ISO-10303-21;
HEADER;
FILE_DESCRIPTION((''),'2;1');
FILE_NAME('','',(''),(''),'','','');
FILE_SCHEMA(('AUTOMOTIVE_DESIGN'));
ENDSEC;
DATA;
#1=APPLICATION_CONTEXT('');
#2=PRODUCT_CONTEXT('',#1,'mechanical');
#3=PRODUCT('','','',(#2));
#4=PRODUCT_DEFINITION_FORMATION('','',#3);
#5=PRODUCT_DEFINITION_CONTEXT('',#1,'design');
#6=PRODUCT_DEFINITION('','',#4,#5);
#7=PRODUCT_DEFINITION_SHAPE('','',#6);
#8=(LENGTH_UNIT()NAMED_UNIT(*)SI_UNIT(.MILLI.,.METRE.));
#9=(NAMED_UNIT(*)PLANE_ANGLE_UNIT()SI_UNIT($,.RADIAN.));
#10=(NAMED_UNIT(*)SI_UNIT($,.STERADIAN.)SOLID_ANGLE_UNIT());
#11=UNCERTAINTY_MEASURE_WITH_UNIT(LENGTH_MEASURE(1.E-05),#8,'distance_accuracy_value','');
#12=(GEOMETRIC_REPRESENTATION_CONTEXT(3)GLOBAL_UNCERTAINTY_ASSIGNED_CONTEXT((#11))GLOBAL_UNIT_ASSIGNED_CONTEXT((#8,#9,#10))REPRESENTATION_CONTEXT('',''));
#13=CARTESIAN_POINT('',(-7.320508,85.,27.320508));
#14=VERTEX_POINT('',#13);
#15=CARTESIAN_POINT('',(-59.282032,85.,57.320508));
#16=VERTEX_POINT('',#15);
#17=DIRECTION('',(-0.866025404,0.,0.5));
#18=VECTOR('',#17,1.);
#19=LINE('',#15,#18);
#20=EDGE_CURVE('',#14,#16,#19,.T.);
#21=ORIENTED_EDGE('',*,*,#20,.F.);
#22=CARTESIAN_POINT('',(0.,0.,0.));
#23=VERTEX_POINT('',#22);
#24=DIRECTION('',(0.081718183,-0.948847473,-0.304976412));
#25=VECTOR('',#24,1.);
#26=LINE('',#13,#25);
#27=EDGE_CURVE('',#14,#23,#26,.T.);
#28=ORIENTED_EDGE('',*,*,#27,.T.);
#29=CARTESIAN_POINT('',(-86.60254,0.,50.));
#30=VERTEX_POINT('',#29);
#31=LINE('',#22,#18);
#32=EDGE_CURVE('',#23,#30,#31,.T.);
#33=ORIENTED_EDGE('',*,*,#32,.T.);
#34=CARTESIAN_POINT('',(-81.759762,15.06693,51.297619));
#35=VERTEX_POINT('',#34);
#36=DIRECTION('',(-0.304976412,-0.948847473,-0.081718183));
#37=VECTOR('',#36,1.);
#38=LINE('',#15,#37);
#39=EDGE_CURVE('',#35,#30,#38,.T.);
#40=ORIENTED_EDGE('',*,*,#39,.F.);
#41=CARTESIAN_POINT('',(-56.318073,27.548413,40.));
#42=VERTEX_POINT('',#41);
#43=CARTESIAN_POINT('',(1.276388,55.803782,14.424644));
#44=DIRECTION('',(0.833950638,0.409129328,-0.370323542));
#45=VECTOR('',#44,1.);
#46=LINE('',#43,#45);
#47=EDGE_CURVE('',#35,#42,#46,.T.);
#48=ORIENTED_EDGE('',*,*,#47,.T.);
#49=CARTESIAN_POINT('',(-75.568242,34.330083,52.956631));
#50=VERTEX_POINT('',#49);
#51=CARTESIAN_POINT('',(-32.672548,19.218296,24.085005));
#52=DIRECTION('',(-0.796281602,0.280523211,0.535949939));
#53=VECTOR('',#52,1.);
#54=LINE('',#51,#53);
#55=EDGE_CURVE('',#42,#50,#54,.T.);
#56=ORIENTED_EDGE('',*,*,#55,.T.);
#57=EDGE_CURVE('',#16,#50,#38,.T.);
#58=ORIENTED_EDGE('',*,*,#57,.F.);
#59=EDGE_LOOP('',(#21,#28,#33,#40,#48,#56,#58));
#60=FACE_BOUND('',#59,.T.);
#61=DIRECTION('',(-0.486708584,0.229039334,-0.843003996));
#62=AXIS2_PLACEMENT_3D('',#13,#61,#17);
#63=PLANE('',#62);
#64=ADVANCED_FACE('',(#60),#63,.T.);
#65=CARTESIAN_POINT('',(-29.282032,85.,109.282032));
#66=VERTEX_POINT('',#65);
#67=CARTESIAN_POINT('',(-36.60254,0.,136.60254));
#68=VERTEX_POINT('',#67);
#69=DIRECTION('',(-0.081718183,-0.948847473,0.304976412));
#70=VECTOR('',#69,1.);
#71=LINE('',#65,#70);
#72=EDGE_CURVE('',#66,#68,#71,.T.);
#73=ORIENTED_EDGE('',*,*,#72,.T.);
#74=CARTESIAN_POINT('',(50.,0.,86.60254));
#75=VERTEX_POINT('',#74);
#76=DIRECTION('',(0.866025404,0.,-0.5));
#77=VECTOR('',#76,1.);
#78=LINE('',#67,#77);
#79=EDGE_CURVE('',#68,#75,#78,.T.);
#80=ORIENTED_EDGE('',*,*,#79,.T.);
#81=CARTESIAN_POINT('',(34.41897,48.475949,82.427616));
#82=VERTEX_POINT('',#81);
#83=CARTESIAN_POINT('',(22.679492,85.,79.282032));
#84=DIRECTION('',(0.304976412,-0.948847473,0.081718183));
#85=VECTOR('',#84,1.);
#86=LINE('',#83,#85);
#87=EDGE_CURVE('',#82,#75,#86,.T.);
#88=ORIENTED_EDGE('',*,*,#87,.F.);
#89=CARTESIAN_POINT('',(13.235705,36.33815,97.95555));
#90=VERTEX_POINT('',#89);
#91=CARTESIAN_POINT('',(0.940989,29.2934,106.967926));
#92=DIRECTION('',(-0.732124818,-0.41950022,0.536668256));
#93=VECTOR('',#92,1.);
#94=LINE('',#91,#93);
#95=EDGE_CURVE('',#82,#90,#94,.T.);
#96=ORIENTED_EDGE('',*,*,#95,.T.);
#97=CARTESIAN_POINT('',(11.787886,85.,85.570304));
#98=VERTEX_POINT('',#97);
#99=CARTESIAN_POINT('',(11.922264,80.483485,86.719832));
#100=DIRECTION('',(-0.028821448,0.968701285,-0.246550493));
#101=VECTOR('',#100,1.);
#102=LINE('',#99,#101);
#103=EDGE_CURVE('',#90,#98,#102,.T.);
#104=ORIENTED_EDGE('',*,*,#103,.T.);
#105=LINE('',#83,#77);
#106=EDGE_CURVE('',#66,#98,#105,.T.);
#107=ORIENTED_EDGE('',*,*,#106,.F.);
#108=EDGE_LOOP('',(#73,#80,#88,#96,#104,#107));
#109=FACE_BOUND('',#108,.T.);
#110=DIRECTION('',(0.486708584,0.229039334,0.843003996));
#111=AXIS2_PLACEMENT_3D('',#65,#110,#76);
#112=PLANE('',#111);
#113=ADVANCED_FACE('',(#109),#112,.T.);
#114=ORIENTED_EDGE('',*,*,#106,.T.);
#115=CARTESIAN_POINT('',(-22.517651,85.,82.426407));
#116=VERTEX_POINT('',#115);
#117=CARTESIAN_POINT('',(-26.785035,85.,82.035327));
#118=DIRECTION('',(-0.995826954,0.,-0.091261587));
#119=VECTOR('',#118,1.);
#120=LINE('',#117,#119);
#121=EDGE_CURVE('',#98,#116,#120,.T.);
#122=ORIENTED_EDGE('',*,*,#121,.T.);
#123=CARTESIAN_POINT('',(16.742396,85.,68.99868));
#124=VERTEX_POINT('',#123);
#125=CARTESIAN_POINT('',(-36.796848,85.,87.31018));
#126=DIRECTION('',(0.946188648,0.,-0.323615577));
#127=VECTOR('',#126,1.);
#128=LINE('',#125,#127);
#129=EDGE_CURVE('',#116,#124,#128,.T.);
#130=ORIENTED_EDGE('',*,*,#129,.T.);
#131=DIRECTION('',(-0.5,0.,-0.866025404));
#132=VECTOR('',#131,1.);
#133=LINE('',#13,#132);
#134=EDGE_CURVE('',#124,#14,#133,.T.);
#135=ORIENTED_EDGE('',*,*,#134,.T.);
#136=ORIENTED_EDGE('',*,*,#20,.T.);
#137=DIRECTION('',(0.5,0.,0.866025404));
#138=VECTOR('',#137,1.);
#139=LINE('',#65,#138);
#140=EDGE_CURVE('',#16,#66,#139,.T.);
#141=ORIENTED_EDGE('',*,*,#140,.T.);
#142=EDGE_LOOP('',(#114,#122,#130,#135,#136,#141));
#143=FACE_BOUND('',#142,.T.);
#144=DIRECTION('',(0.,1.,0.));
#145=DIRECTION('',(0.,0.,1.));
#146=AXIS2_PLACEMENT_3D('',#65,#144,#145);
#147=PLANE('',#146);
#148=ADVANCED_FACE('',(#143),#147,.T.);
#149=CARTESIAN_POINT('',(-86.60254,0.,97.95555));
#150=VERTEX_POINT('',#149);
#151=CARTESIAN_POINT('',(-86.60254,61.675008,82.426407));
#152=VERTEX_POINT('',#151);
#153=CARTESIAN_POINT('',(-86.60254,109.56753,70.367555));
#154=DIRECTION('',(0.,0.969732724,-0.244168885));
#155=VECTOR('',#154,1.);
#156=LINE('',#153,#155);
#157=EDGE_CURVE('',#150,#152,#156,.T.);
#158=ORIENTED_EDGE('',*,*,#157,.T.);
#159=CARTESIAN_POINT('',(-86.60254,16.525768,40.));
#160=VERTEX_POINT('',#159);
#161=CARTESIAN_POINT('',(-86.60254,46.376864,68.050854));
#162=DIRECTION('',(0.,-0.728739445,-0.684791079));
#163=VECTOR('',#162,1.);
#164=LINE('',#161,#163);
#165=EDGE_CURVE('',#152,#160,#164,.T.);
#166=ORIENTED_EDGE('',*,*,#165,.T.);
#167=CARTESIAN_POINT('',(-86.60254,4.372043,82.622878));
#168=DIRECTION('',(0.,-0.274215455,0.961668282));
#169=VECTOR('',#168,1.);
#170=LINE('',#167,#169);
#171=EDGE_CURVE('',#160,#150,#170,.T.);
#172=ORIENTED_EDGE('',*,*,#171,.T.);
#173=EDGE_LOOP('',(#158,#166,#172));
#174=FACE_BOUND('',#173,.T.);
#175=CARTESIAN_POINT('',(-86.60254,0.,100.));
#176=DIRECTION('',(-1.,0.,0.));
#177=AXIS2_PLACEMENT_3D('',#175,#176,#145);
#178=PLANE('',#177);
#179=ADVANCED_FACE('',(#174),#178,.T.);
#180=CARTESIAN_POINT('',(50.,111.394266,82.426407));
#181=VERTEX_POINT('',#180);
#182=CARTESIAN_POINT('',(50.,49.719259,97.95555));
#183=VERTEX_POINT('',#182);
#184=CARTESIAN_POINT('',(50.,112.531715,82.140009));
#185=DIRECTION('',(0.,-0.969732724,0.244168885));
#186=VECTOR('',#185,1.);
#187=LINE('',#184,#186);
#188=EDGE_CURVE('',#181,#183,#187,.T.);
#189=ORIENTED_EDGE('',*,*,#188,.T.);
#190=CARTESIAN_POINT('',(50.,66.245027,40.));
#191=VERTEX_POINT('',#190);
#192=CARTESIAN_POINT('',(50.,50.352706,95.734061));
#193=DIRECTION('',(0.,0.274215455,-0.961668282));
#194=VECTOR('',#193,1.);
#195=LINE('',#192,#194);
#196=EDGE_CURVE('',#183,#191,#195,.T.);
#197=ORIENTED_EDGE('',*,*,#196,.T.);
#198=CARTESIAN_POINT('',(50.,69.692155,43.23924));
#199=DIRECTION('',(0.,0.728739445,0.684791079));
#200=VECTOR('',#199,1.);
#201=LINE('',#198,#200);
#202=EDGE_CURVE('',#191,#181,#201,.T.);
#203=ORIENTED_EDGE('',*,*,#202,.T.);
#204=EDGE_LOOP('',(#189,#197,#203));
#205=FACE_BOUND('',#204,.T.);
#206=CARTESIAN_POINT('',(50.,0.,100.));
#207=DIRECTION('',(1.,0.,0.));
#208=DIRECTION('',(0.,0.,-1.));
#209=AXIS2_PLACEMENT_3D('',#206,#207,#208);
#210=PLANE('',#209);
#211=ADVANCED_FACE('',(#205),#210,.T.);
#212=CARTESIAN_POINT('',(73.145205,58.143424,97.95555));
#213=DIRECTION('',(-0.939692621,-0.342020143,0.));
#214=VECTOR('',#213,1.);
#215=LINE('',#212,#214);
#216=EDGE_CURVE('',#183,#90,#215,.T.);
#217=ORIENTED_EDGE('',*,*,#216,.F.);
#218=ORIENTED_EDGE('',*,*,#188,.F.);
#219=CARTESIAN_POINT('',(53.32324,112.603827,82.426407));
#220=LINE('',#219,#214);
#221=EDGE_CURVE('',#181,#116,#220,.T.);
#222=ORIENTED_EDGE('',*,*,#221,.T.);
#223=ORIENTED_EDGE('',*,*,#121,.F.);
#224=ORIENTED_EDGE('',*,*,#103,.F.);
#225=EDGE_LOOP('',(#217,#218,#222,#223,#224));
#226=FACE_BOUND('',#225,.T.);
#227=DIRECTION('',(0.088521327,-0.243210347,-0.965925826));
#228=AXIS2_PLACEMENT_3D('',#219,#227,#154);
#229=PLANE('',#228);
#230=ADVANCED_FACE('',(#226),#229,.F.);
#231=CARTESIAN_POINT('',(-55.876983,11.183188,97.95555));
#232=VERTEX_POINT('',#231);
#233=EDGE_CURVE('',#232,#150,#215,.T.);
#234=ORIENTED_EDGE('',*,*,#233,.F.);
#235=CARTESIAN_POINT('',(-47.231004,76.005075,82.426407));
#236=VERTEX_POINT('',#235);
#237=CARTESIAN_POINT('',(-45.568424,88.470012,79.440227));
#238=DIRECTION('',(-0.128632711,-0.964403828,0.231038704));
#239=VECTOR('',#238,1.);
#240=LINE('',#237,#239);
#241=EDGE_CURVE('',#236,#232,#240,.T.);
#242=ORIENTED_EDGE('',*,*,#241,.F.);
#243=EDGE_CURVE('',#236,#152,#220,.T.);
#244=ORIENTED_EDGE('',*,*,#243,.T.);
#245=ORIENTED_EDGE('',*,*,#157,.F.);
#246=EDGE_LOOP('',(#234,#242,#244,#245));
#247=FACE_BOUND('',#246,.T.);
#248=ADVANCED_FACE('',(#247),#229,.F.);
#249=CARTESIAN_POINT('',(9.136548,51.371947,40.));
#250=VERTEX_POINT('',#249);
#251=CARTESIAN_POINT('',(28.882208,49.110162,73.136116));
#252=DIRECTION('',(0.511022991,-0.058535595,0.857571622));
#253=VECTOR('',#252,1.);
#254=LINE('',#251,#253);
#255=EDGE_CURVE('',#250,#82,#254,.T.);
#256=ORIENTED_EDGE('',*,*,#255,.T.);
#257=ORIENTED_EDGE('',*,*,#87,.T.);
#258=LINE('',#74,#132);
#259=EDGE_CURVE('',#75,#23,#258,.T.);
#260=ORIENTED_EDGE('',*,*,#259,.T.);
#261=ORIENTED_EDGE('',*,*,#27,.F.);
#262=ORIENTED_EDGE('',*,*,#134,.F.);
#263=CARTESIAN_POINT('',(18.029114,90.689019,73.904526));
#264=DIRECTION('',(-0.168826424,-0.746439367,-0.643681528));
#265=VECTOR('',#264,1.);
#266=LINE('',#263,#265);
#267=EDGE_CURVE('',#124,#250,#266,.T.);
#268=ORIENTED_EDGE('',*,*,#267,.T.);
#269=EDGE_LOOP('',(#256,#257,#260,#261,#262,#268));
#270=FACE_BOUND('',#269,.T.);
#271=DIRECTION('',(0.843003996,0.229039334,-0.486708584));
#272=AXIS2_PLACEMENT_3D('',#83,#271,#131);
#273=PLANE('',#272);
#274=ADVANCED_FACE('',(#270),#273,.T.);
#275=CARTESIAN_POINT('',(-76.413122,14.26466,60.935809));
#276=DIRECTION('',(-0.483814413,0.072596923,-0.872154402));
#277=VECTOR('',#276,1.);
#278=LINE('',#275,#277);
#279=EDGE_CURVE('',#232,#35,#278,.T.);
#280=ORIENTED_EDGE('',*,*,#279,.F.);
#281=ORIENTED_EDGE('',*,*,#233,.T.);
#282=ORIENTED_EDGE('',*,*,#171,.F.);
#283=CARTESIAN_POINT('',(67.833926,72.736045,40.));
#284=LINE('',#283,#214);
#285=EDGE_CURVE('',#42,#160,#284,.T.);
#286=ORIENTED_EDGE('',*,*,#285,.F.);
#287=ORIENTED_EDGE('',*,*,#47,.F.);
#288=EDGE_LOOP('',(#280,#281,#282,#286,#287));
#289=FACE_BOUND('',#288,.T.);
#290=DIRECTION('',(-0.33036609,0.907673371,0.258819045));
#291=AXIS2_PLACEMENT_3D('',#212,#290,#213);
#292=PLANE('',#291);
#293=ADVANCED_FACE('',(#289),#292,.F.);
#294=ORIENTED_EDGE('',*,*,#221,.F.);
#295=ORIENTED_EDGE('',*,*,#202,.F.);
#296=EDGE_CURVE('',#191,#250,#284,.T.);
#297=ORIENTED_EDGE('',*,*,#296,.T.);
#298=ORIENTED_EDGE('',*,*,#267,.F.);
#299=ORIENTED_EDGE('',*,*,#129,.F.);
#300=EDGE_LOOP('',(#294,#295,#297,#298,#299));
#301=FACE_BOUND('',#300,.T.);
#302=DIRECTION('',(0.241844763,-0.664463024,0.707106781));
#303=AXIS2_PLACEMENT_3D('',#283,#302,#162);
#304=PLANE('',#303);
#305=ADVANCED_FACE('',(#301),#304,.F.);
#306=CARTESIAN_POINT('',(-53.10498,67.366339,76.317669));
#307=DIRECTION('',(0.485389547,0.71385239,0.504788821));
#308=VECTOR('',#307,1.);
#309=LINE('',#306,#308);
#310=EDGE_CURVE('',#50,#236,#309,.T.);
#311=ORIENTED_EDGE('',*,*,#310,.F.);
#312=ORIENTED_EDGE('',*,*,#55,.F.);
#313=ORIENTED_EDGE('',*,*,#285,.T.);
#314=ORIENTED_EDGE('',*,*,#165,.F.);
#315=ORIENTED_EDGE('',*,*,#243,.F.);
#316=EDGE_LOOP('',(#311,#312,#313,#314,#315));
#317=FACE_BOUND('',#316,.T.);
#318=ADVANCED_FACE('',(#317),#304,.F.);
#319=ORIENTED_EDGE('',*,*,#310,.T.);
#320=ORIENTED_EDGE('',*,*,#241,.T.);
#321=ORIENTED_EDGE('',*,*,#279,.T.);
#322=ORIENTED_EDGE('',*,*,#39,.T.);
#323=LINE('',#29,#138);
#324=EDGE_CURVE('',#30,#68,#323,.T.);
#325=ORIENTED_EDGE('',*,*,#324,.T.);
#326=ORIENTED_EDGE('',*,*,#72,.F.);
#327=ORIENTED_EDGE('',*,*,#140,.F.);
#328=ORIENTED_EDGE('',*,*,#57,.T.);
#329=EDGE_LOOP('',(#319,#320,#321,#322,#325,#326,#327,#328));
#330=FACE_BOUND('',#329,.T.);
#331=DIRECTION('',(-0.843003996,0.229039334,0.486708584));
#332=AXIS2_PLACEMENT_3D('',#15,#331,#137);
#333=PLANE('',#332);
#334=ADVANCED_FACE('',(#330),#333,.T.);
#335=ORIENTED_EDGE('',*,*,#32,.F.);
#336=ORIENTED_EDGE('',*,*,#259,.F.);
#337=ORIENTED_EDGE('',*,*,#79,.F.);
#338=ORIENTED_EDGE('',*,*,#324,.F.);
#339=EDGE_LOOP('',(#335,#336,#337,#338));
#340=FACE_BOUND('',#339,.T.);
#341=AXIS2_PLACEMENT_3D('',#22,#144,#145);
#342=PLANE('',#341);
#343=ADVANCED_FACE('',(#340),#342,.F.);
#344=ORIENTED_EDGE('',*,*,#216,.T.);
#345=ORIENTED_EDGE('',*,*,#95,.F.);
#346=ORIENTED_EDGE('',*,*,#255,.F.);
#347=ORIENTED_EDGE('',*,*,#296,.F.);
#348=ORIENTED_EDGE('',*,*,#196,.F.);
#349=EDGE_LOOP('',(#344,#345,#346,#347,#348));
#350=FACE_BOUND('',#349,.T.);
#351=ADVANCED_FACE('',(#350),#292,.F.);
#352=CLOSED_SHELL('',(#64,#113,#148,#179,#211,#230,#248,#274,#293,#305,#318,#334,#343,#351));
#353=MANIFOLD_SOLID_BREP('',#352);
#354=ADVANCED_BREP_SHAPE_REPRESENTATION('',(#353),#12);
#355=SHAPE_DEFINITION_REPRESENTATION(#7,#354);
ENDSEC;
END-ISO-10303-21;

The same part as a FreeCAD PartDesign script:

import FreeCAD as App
import Part
import Sketcher
Q = App.Units.Quantity

doc = App.newDocument("Part")
params = doc.addObject("Spreadsheet::Sheet", "Params")
for row, (alias, value) in enumerate([
    ("sketch1_length", "60 mm"),
    ("sketch2_length", "100 mm"),
    ("sketch3_length", "60 mm"),
    ("pad1_length", "170 mm"),
    ("pocket1_length", "100 mm"),
], start=1):
    params.set(f"A{row}", alias)
    params.set(f"B{row}", "=" + value)
    params.setAlias(f"B{row}", alias)

body = doc.addObject("PartDesign::Body", "Body")

# Sketch on XZ plane
sketch1 = doc.addObject("Sketcher::SketchObject", "Sketch")
body.addObject(sketch1)
sketch1.AttachmentSupport = (doc.XZ_Plane, [""])
sketch1.MapMode = "FlatFace"
sketch1.AttachmentOffset = App.Placement(App.Vector(0, 0, -85), App.Rotation())
sketch1.addGeometry(Part.LineSegment(App.Vector(-7.320508, 27.320508, 0), App.Vector(-59.282032, 57.320508, 0)), False)
sketch1.addGeometry(Part.LineSegment(App.Vector(-59.282032, 57.320508, 0), App.Vector(-29.282032, 109.282032, 0)), False)
sketch1.addGeometry(Part.LineSegment(App.Vector(-29.282032, 109.282032, 0), App.Vector(22.679492, 79.282032, 0)), False)
sketch1.addGeometry(Part.LineSegment(App.Vector(22.679492, 79.282032, 0), App.Vector(-7.320508, 27.320508, 0)), False)
sketch1.addConstraint(Sketcher.Constraint("Coincident", 0, 2, 1, 1))
sketch1.addConstraint(Sketcher.Constraint("Coincident", 1, 2, 2, 1))
sketch1.addConstraint(Sketcher.Constraint("Coincident", 2, 2, 3, 1))
sketch1.addConstraint(Sketcher.Constraint("Coincident", 3, 2, 0, 1))
sketch1.addConstraint(Sketcher.Constraint("Perpendicular", 0, 1))
sketch1.addConstraint(Sketcher.Constraint("Perpendicular", 1, 2))
sketch1.addConstraint(Sketcher.Constraint("Perpendicular", 2, 3))
sketch1.addConstraint(Sketcher.Constraint("Equal", 0, 1))
sketch1.addConstraint(Sketcher.Constraint("Angle", 0, Q("150 deg")))
sketch1.addConstraint(Sketcher.Constraint("Distance", 0, Q("60 mm")))
sketch1.addConstraint(Sketcher.Constraint("DistanceY", -1, 1, 0, 2, Q("57.320508 mm")))
sketch1.addConstraint(Sketcher.Constraint("DistanceX", -1, 1, 2, 2, Q("22.679492 mm")))
sketch1.setExpression("Constraints[9]", "Params.sketch1_length")

# Sketch on XZ plane
sketch2 = doc.addObject("Sketcher::SketchObject", "Sketch001")
body.addObject(sketch2)
sketch2.AttachmentSupport = (doc.XZ_Plane, [""])
sketch2.MapMode = "FlatFace"
sketch2.addGeometry(Part.LineSegment(App.Vector(0, 0, 0), App.Vector(-86.60254, 50, 0)), False)
sketch2.addGeometry(Part.LineSegment(App.Vector(-86.60254, 50, 0), App.Vector(-36.60254, 136.60254, 0)), False)
sketch2.addGeometry(Part.LineSegment(App.Vector(-36.60254, 136.60254, 0), App.Vector(50, 86.60254, 0)), False)
sketch2.addGeometry(Part.LineSegment(App.Vector(50, 86.60254, 0), App.Vector(0, 0, 0)), False)
sketch2.addConstraint(Sketcher.Constraint("Coincident", 0, 2, 1, 1))
sketch2.addConstraint(Sketcher.Constraint("Coincident", 1, 2, 2, 1))
sketch2.addConstraint(Sketcher.Constraint("Coincident", 2, 2, 3, 1))
sketch2.addConstraint(Sketcher.Constraint("Coincident", 3, 2, 0, 1))
sketch2.addConstraint(Sketcher.Constraint("Coincident", 3, 2, -1, 1))
sketch2.addConstraint(Sketcher.Constraint("Perpendicular", 0, 1))
sketch2.addConstraint(Sketcher.Constraint("Perpendicular", 1, 2))
sketch2.addConstraint(Sketcher.Constraint("Perpendicular", 2, 3))
sketch2.addConstraint(Sketcher.Constraint("Equal", 0, 1))
sketch2.addConstraint(Sketcher.Constraint("Angle", 0, Q("150 deg")))
sketch2.addConstraint(Sketcher.Constraint("Distance", 0, Q("100 mm")))
sketch2.setExpression("Constraints[10]", "Params.sketch2_length")

additiveloft = doc.addObject("PartDesign::AdditiveLoft", "AdditiveLoft")
body.addObject(additiveloft)
additiveloft.Profile = sketch1
additiveloft.Sections = [sketch2]

# Sketch on an angled plane
sketch3 = doc.addObject("Sketcher::SketchObject", "Sketch002")
body.addObject(sketch3)
sketch3.Placement = App.Placement(App.Vector(-76.471968, -27.83352, 0), App.Rotation(App.Vector(0, 0, -1), App.Vector(-0.342020143, 0.939692621, 0), App.Vector(0.939692621, 0.342020143, 0), "ZXY"))
sketch3.addGeometry(Part.LineSegment(App.Vector(-97.95555, 29.619813, 0), App.Vector(-40, 45.148956, 0)), False)
sketch3.addGeometry(Part.LineSegment(App.Vector(-40, 45.148956, 0), App.Vector(-82.426407, 87.575363, 0)), False)
sketch3.addGeometry(Part.LineSegment(App.Vector(-82.426407, 87.575363, 0), App.Vector(-97.95555, 29.619813, 0)), False)
sketch3.addConstraint(Sketcher.Constraint("Coincident", 0, 2, 1, 1))
sketch3.addConstraint(Sketcher.Constraint("Coincident", 1, 2, 2, 1))
sketch3.addConstraint(Sketcher.Constraint("Coincident", 2, 2, 0, 1))
sketch3.addConstraint(Sketcher.Constraint("Equal", 0, 1))
sketch3.addConstraint(Sketcher.Constraint("Equal", 1, 2))
sketch3.addConstraint(Sketcher.Constraint("Angle", 0, Q("15 deg")))
sketch3.addConstraint(Sketcher.Constraint("Distance", 0, Q("60 mm")))
sketch3.addConstraint(Sketcher.Constraint("DistanceX", 0, 2, -1, 1, Q("40 mm")))
sketch3.addConstraint(Sketcher.Constraint("DistanceY", -1, 1, 0, 2, Q("45.148956 mm")))
sketch3.setExpression("Constraints[6]", "Params.sketch3_length")
pad1 = doc.addObject("PartDesign::Pad", "Pad")
body.addObject(pad1)
pad1.Profile = sketch3
pad1.setExpression("Length", "Params.pad1_length")

# Sketch on XY plane
sketch4 = doc.addObject("Sketcher::SketchObject", "Sketch003")
body.addObject(sketch4)
sketch4.AttachmentSupport = (doc.XY_Plane, [""])
sketch4.MapMode = "FlatFace"
sketch4.addGeometry(Part.LineSegment(App.Vector(-107.433843, 63.485203, 0), App.Vector(-107.433843, 0, 0)), False)
sketch4.addGeometry(Part.LineSegment(App.Vector(-107.433843, 0, 0), App.Vector(-86.60254, 0, 0)), False)
sketch4.addGeometry(Part.LineSegment(App.Vector(-86.60254, 0, 0), App.Vector(-86.60254, 63.485203, 0)), False)
sketch4.addGeometry(Part.LineSegment(App.Vector(-86.60254, 63.485203, 0), App.Vector(-107.433843, 63.485203, 0)), False)
sketch4.addGeometry(Part.LineSegment(App.Vector(50, 114.246192, 0), App.Vector(50, 0, 0)), False)
sketch4.addGeometry(Part.LineSegment(App.Vector(50, 0, 0), App.Vector(75.650694, 0, 0)), False)
sketch4.addGeometry(Part.LineSegment(App.Vector(75.650694, 0, 0), App.Vector(75.650694, 114.246192, 0)), False)
sketch4.addGeometry(Part.LineSegment(App.Vector(75.650694, 114.246192, 0), App.Vector(50, 114.246192, 0)), False)
sketch4.addConstraint(Sketcher.Constraint("Coincident", 0, 2, 1, 1))
sketch4.addConstraint(Sketcher.Constraint("Coincident", 1, 2, 2, 1))
sketch4.addConstraint(Sketcher.Constraint("Coincident", 2, 2, 3, 1))
sketch4.addConstraint(Sketcher.Constraint("Coincident", 3, 2, 0, 1))
sketch4.addConstraint(Sketcher.Constraint("Coincident", 4, 2, 5, 1))
sketch4.addConstraint(Sketcher.Constraint("Coincident", 5, 2, 6, 1))
sketch4.addConstraint(Sketcher.Constraint("Coincident", 6, 2, 7, 1))
sketch4.addConstraint(Sketcher.Constraint("Coincident", 7, 2, 4, 1))
sketch4.addConstraint(Sketcher.Constraint("Vertical", 0))
sketch4.addConstraint(Sketcher.Constraint("Horizontal", 1))
sketch4.addConstraint(Sketcher.Constraint("Vertical", 2))
sketch4.addConstraint(Sketcher.Constraint("Horizontal", 3))
sketch4.addConstraint(Sketcher.Constraint("Vertical", 4))
sketch4.addConstraint(Sketcher.Constraint("Horizontal", 5))
sketch4.addConstraint(Sketcher.Constraint("Vertical", 6))
sketch4.addConstraint(Sketcher.Constraint("Horizontal", 7))
sketch4.addConstraint(Sketcher.Constraint("PointOnObject", 0, 2, -1))
sketch4.addConstraint(Sketcher.Constraint("PointOnObject", 4, 2, -1))
sketch4.addConstraint(Sketcher.Constraint("DistanceX", -1, 1, 4, 2, Q("50 mm")))
sketch4.addConstraint(Sketcher.Constraint("DistanceY", 4, 2, 4, 1, Q("114.246192 mm")))
sketch4.addConstraint(Sketcher.Constraint("DistanceX", 1, 1, 1, 2, Q("20.831303 mm")))
sketch4.addConstraint(Sketcher.Constraint("DistanceX", 5, 1, 5, 2, Q("25.650694 mm")))
sketch4.addConstraint(Sketcher.Constraint("DistanceY", 0, 2, 0, 1, Q("63.485203 mm")))
sketch4.addConstraint(Sketcher.Constraint("DistanceX", 1, 2, -1, 1, Q("86.60254 mm")))
pocket1 = doc.addObject("PartDesign::Pocket", "Pocket")
body.addObject(pocket1)
pocket1.Profile = sketch4
pocket1.setExpression("Length", "Params.pocket1_length")
pocket1.Reversed = True

doc.recompute()
